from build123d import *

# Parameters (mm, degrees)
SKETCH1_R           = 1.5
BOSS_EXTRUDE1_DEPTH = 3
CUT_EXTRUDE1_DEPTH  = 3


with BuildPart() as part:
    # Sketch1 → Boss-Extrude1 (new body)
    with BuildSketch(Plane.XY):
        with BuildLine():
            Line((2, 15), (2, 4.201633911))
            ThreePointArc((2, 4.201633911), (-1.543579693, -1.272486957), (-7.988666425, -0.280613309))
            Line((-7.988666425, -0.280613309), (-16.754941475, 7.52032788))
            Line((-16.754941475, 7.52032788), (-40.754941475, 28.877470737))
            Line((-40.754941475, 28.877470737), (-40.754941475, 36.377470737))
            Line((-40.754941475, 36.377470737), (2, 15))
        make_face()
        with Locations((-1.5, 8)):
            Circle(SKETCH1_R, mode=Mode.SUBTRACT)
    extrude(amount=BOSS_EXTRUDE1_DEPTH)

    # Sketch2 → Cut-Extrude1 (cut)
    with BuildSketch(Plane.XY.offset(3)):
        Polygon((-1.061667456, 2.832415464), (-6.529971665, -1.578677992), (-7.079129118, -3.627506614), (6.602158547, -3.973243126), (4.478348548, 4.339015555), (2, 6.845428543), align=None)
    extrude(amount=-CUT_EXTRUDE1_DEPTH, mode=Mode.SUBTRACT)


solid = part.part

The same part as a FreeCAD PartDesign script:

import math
import FreeCAD as App
import Part
import Sketcher
from FreeCAD import Vector

doc = App.newDocument("Part")
body = doc.addObject("PartDesign::Body", "Body")

# Sketch on XY plane
sketch1 = body.newObject("Sketcher::SketchObject", "Sketch")
sketch1.AttachmentSupport = (doc.getObject("XY_Plane"), [""])
sketch1.MapMode = "FlatFace"
sketch1.addGeometry([
    Part.LineSegment(Vector(2, 4.2, 0), Vector(2, 15, 0)),  # 0
    Part.LineSegment(Vector(2, 15, 0), Vector(-40.8, 36.4, 0)),  # 1
    Part.LineSegment(Vector(-40.8, 36.4, 0), Vector(-40.8, 28.9, 0)),  # 2
    Part.LineSegment(Vector(-40.8, 28.9, 0), Vector(-16.8, 7.5, 0)),  # 3
    Part.LineSegment(Vector(-16.8, 7.5, 0), Vector(-8, -0.3, 0)),  # 4
    Part.ArcOfCircle(Part.Circle(Vector(-4, 4.2, 0), Vector(0, 0, 1), 6), math.radians(-132), math.radians(0)),  # 5
    Part.Circle(Vector(-1.5, 8, 0), Vector(0, 0, 1), 1.5),  # 6
], False)
sketch1.addConstraint([
    Sketcher.Constraint("Coincident", 0, 2, 1, 1),
    Sketcher.Constraint("Coincident", 1, 2, 2, 1),
    Sketcher.Constraint("Coincident", 2, 2, 3, 1),
    Sketcher.Constraint("Coincident", 3, 2, 4, 1),
    Sketcher.Constraint("Tangent", 4, 2, 5, 1),
    Sketcher.Constraint("Tangent", 5, 2, 0, 1),
    Sketcher.Constraint("Vertical", 0),
    Sketcher.Constraint("Vertical", 2),
    Sketcher.Constraint("Parallel", 3, 4),
    Sketcher.Constraint("Diameter", 6, 3.0),
    Sketcher.Constraint("Radius", 5, 6.0),
    Sketcher.Constraint("DistanceY", 2, 2, 2, 1, 7.5),
    Sketcher.Constraint("DistanceX", 5, 3, -1, 1, 4.0),
    Sketcher.Constraint("DistanceY", -1, 1, 6, 3, 8.0),
    Sketcher.Constraint("DistanceY", -1, 1, 0, 2, 15.0),
    Sketcher.Constraint("DistanceX", 2, 2, 3, 2, 24.0),
    Sketcher.Constraint("DistanceX", 6, 3, -1, 1, 1.5),
    Sketcher.Constraint("Distance", 3, 32.126742),
    Sketcher.Constraint("Distance", 4, 11.734661),
    Sketcher.Constraint("DistanceY", 0, 1, 0, 2, 10.798366),
])
pad1 = body.newObject("PartDesign::Pad", "Pad")
pad1.Profile = sketch1
pad1.Length = 3

# Sketch on XY plane
sketch2 = body.newObject("Sketcher::SketchObject", "Sketch001")
sketch2.AttachmentSupport = (doc.getObject("XY_Plane"), [""])
sketch2.MapMode = "FlatFace"
sketch2.AttachmentOffset = App.Placement(Vector(0, 0, 3), App.Rotation())
sketch2.addGeometry([
    Part.LineSegment(Vector(-1.1, 2.8, 0), Vector(-6.5, -1.6, 0)),  # 0
    Part.LineSegment(Vector(-6.5, -1.6, 0), Vector(-7.1, -3.6, 0)),  # 1
    Part.LineSegment(Vector(-7.1, -3.6, 0), Vector(6.6, -4, 0)),  # 2
    Part.LineSegment(Vector(6.6, -4, 0), Vector(4.5, 4.3, 0)),  # 3
    Part.LineSegment(Vector(4.5, 4.3, 0), Vector(2, 6.8, 0)),  # 4
    Part.LineSegment(Vector(2, 6.8, 0), Vector(-1.1, 2.8, 0)),  # 5
], False)
sketch2.addConstraint([
    Sketcher.Constraint("Coincident", 0, 2, 1, 1),
    Sketcher.Constraint("Coincident", 1, 2, 2, 1),
    Sketcher.Constraint("Coincident", 2, 2, 3, 1),
    Sketcher.Constraint("Coincident", 3, 2, 4, 1),
    Sketcher.Constraint("Coincident", 4, 2, 5, 1),
    Sketcher.Constraint("Coincident", 5, 2, 0, 1),
    Sketcher.Constraint("DistanceX", -1, 1, 4, 2, 2.0),
    Sketcher.Constraint("DistanceY", 5, 2, 3, 2, 1.5066),
    Sketcher.Constraint("Distance", 1, 2.121149),
    Sketcher.Constraint("Distance", 3, 8.57929),
    Sketcher.Constraint("Distance", 5, 5.047582),
    Sketcher.Constraint("DistanceX", 0, 2, -1, 1, 6.529972),
    Sketcher.Constraint("DistanceX", 1, 2, -1, 1, 7.079129),
    Sketcher.Constraint("DistanceX", -1, 1, 2, 2, 6.602159),
    Sketcher.Constraint("DistanceX", -1, 1, 3, 2, 4.478349),
    Sketcher.Constraint("DistanceY", -1, 1, 4, 2, 6.845429),
    Sketcher.Constraint("DistanceY", 2, 2, 4, 2, 10.818672),
    Sketcher.Constraint("Distance", 0, 7.025674),
])
pocket1 = body.newObject("PartDesign::Pocket", "Pocket")
pocket1.Profile = sketch2
pocket1.Length = 3

doc.recompute()
